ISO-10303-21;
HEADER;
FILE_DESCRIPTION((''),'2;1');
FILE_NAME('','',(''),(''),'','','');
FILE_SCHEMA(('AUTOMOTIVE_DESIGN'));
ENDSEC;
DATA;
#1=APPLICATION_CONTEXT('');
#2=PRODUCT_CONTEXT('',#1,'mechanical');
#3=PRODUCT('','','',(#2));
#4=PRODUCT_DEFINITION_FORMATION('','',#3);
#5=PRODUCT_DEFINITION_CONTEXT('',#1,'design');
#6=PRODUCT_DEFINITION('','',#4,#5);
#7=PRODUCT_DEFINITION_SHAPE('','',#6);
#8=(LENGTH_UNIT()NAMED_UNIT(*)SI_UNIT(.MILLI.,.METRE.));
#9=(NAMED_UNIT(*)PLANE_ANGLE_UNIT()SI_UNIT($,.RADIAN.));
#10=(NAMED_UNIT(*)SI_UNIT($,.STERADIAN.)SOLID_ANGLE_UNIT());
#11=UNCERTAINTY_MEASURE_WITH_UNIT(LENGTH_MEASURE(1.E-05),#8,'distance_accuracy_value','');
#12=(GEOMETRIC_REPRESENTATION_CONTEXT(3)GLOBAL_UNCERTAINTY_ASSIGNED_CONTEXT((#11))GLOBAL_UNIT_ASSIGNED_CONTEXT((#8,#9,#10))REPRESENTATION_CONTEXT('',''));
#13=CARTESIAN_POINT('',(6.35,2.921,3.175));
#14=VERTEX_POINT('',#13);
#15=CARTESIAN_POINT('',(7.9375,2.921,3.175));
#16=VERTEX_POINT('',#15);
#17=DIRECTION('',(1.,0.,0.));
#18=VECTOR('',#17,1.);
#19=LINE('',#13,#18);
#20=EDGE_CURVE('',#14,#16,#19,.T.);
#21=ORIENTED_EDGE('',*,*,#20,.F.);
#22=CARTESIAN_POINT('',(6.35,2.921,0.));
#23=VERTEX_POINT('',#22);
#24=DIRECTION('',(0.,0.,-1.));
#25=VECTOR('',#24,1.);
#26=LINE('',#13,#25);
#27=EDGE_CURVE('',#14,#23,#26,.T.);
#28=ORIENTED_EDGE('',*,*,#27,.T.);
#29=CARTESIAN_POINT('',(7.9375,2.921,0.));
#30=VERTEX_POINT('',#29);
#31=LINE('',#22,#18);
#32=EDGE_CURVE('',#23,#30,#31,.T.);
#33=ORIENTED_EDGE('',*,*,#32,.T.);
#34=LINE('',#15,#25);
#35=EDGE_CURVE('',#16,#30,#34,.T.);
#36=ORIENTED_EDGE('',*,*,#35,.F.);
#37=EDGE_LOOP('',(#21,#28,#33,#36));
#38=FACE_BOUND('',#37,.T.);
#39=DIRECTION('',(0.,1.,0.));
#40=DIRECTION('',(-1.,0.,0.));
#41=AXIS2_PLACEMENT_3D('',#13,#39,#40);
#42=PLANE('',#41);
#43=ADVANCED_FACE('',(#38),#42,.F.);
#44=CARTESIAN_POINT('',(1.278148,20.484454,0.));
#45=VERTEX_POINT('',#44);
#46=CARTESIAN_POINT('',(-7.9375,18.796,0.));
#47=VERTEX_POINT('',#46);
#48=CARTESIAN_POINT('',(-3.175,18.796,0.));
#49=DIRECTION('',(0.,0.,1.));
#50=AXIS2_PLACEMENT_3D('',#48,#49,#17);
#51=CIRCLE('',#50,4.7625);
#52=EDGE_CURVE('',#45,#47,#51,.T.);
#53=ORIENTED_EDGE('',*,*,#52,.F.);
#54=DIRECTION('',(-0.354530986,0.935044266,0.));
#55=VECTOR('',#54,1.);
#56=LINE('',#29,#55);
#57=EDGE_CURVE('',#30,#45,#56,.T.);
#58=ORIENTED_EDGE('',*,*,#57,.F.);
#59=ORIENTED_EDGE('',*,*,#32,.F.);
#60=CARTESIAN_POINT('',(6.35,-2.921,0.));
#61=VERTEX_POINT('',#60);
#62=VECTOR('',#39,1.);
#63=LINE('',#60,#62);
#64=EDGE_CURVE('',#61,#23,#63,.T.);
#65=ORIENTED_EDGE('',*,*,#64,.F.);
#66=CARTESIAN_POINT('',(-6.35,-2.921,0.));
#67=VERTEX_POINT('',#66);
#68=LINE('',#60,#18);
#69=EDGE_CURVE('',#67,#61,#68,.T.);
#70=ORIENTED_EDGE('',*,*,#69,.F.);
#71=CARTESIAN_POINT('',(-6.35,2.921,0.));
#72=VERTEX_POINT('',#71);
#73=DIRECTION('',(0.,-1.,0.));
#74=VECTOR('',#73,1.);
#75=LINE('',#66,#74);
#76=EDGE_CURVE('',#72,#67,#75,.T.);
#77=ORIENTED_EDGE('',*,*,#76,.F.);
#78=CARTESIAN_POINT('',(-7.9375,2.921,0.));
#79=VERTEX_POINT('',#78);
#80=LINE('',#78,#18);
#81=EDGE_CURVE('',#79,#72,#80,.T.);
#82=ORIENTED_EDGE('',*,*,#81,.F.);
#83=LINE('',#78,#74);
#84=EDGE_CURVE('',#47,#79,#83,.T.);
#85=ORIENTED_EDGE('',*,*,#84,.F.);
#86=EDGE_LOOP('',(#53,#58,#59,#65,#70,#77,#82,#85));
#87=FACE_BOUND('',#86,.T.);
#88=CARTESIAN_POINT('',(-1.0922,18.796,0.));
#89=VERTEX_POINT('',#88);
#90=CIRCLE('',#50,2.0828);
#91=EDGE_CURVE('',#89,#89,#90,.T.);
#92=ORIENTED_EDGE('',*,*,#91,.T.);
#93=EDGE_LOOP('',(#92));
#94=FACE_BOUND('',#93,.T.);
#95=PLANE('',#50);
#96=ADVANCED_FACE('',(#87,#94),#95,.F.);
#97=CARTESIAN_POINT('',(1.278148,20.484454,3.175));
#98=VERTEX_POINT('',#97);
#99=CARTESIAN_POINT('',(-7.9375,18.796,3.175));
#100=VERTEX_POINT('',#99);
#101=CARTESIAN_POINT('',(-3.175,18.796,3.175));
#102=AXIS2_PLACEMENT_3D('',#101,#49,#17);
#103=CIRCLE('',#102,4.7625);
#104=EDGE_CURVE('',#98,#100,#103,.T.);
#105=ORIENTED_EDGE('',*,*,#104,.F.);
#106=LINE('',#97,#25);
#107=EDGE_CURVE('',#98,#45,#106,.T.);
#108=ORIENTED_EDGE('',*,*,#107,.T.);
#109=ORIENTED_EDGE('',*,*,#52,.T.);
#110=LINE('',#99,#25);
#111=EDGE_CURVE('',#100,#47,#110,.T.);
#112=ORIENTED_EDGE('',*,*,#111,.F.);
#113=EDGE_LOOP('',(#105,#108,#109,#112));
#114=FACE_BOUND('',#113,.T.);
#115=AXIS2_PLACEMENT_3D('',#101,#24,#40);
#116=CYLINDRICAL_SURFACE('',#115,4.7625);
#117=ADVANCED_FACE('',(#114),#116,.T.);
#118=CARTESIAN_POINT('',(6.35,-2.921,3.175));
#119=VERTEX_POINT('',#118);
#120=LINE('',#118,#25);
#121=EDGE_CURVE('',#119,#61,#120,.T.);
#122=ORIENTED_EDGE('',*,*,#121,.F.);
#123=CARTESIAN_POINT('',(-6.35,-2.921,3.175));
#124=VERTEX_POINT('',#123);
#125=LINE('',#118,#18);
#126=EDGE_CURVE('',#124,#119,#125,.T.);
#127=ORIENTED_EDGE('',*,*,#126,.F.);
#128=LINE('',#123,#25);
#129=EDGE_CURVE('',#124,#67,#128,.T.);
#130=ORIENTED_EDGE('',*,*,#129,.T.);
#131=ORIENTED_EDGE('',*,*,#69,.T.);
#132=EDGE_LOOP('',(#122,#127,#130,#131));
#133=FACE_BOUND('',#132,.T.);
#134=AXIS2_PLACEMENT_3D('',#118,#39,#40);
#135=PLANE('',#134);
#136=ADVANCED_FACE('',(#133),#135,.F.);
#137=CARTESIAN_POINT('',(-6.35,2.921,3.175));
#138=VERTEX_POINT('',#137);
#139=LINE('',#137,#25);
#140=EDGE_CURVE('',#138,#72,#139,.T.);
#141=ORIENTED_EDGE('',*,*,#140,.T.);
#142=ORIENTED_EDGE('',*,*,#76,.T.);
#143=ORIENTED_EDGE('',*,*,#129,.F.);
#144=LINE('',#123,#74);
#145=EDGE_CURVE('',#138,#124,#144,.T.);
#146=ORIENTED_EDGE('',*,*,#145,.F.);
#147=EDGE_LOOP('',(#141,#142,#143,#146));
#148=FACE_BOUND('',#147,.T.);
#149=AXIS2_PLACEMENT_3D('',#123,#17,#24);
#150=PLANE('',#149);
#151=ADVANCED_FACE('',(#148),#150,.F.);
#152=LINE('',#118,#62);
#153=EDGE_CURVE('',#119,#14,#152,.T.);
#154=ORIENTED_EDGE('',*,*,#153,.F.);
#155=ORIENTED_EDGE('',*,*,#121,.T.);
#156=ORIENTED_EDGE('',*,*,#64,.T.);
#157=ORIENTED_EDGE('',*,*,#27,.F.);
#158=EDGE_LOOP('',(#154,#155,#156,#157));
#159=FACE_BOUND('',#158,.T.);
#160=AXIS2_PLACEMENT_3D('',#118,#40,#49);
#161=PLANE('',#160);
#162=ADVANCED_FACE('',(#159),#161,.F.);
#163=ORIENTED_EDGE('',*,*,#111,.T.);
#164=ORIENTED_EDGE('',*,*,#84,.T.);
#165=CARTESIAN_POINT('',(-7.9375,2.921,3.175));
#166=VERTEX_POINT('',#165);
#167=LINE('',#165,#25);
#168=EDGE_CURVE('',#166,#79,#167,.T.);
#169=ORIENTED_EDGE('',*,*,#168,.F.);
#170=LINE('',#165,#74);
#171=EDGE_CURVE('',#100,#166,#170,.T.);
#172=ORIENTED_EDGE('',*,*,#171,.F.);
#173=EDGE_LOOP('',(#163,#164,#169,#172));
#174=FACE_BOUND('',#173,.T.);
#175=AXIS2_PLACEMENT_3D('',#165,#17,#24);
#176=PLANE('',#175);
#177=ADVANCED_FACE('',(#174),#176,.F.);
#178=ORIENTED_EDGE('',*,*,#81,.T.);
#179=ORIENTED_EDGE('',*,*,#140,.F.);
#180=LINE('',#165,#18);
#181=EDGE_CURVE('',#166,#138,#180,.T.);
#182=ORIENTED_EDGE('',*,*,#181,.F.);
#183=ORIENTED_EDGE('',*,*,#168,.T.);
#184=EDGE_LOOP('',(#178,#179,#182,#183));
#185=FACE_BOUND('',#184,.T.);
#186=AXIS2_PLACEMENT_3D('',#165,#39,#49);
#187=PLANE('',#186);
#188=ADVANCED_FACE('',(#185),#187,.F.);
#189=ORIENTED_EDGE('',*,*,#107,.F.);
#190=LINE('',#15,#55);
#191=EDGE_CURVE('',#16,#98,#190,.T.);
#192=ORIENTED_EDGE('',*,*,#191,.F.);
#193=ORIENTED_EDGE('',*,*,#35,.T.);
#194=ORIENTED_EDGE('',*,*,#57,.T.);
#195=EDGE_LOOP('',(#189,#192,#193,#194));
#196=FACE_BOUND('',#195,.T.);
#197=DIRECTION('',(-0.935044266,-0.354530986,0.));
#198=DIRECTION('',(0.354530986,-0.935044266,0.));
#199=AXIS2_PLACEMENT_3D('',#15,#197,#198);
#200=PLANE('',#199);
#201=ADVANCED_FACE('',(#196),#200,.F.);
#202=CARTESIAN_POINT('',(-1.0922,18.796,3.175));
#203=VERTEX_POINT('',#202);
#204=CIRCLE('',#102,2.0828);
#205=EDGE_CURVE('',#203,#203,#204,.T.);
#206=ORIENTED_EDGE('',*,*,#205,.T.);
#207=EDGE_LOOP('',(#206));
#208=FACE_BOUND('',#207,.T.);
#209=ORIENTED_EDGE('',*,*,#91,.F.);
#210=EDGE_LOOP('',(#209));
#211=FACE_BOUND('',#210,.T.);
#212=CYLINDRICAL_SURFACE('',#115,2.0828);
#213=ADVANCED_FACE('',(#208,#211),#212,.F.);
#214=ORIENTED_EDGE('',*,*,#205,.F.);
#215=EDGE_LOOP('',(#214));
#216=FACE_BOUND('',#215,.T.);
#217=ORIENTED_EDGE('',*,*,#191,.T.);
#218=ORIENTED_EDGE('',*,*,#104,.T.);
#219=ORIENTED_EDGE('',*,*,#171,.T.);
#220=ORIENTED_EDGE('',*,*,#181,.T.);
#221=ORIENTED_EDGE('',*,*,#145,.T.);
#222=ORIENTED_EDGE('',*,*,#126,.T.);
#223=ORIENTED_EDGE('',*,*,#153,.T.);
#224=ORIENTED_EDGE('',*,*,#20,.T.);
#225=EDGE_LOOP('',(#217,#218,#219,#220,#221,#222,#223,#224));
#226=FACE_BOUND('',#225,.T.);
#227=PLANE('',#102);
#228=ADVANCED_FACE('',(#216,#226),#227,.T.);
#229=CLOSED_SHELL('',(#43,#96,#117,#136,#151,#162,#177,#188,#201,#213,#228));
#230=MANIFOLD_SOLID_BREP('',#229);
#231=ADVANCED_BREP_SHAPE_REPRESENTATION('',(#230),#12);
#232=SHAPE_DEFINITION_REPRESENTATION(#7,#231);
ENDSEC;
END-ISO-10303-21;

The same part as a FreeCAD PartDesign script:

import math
import FreeCAD as App
import Part
import Sketcher
Q = App.Units.Quantity

doc = App.newDocument("Part")
params = doc.addObject("Spreadsheet::Sheet", "Params")
for row, (alias, value) in enumerate([
    ("sketch1_diameter", "0.164 in"),
    ("sketch1_width", "0.5 in"),
    ("sketch1_radius", "0.1875 in"),
    ("sketch1_height", "0.23 in"),
    ("sketch1_width2", "0.0625 in"),
    ("pad1_length", "0.125 in"),
], start=1):
    params.set(f"A{row}", alias)
    params.set(f"B{row}", "=" + value)
    params.setAlias(f"B{row}", alias)

body = doc.addObject("PartDesign::Body", "Body")

# Sketch on XY plane
sketch1 = doc.addObject("Sketcher::SketchObject", "Sketch")
body.addObject(sketch1)
sketch1.AttachmentSupport = (doc.XY_Plane, [""])
sketch1.MapMode = "FlatFace"
sketch1.addGeometry([
    Part.LineSegment(App.Vector(7.9, 2.9, 0), App.Vector(1.3, 20.5, 0)),  # 0
    Part.ArcOfCircle(Part.Circle(App.Vector(-3.2, 18.8, 0), App.Vector(0, 0, 1), 4.8), math.radians(21), math.radians(180)),  # 1
    Part.LineSegment(App.Vector(-7.9, 18.8, 0), App.Vector(-7.9, 2.9, 0)),  # 2
    Part.LineSegment(App.Vector(-7.9, 2.9, 0), App.Vector(-6.3, 2.9, 0)),  # 3
    Part.LineSegment(App.Vector(-6.3, 2.9, 0), App.Vector(-6.3, -2.9, 0)),  # 4
    Part.LineSegment(App.Vector(-6.3, -2.9, 0), App.Vector(6.3, -2.9, 0)),  # 5
    Part.LineSegment(App.Vector(6.3, -2.9, 0), App.Vector(6.3, 2.9, 0)),  # 6
    Part.LineSegment(App.Vector(6.3, 2.9, 0), App.Vector(7.9, 2.9, 0)),  # 7
    Part.Circle(App.Vector(-3.2, 18.8, 0), App.Vector(0, 0, 1), 2.1),  # 8
], False)
sketch1.addConstraint([
    Sketcher.Constraint("Tangent", 0, 2, 1, 1),
    Sketcher.Constraint("Tangent", 1, 2, 2, 1),
    Sketcher.Constraint("Coincident", 2, 2, 3, 1),
    Sketcher.Constraint("Coincident", 3, 2, 4, 1),
    Sketcher.Constraint("Coincident", 4, 2, 5, 1),
    Sketcher.Constraint("Coincident", 5, 2, 6, 1),
    Sketcher.Constraint("Coincident", 6, 2, 7, 1),
    Sketcher.Constraint("Coincident", 7, 2, 0, 1),
    Sketcher.Constraint("Vertical", 2),
    Sketcher.Constraint("Horizontal", 3),
    Sketcher.Constraint("Vertical", 4),
    Sketcher.Constraint("Horizontal", 5),
    Sketcher.Constraint("Vertical", 6),
    Sketcher.Constraint("Horizontal", 7),
    Sketcher.Constraint("Coincident", 8, 3, 1, 3),
    Sketcher.Constraint("Symmetric", 3, 2, 5, 2, -1, 1),
    Sketcher.Constraint("Symmetric", 2, 2, 7, 2, -2),
    Sketcher.Constraint("Diameter", 8, Q("0.164 in")),
    Sketcher.Constraint("DistanceX", 5, 1, 5, 2, Q("0.5 in")),
    Sketcher.Constraint("Radius", 1, Q("0.1875 in")),
    Sketcher.Constraint("DistanceY", 4, 2, 4, 1, Q("0.23 in")),
    Sketcher.Constraint("DistanceX", 3, 1, 3, 2, Q("0.0625 in")),
    Sketcher.Constraint("DistanceY", 2, 2, 2, 1, Q("0.625 in")),
])
sketch1.setExpression("Constraints[17]", "Params.sketch1_diameter")
sketch1.setExpression("Constraints[18]", "Params.sketch1_width")
sketch1.setExpression("Constraints[19]", "Params.sketch1_radius")
sketch1.setExpression("Constraints[20]", "Params.sketch1_height")
sketch1.setExpression("Constraints[21]", "Params.sketch1_width2")
pad1 = doc.addObject("PartDesign::Pad", "Pad")
body.addObject(pad1)
pad1.Profile = sketch1
pad1.setExpression("Length", "Params.pad1_length")

doc.recompute()
